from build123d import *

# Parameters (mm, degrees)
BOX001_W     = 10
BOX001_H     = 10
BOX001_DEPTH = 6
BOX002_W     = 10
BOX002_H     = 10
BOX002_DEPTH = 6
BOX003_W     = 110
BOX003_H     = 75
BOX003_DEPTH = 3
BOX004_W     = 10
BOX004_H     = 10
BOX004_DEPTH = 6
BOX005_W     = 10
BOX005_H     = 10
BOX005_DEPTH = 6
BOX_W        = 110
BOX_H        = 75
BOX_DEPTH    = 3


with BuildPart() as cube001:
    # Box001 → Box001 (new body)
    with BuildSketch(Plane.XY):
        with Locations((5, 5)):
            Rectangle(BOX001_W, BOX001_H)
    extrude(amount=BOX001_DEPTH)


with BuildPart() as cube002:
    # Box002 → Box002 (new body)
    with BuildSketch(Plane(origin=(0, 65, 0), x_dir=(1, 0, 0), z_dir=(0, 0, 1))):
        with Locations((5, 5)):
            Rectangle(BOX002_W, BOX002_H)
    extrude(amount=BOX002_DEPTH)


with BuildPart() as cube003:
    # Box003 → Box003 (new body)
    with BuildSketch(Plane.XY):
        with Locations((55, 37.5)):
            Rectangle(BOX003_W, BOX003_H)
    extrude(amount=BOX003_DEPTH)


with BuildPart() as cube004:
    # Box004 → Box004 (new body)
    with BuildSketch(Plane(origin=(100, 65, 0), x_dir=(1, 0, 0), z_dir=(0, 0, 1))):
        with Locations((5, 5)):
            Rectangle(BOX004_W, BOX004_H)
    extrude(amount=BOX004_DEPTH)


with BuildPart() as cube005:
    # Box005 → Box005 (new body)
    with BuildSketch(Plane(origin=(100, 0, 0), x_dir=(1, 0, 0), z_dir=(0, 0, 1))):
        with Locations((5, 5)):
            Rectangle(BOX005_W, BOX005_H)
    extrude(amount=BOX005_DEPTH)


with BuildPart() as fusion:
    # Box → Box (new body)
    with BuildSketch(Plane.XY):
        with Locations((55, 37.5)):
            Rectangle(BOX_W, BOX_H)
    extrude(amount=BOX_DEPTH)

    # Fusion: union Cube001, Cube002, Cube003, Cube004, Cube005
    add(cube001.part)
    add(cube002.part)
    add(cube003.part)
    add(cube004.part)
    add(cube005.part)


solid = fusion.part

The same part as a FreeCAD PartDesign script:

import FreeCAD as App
import Part
import Sketcher

doc = App.newDocument("Part")
params = doc.addObject("Spreadsheet::Sheet", "Params")
for row, (alias, value) in enumerate([
    ("sketch1_width", "10 mm"),
    ("pad1_length", "6 mm"),
    ("sketch2_width", "10 mm"),
    ("pad2_length", "6 mm"),
    ("sketch3_width", "110 mm"),
    ("sketch3_height", "75 mm"),
    ("pad3_length", "3 mm"),
    ("sketch4_width", "10 mm"),
    ("pad4_length", "6 mm"),
    ("sketch5_width", "10 mm"),
    ("pad5_length", "6 mm"),
    ("sketch6_width", "110 mm"),
    ("sketch6_height", "75 mm"),
    ("pad6_length", "3 mm"),
], start=1):
    params.set(f"A{row}", alias)
    params.set(f"B{row}", "=" + value)
    params.setAlias(f"B{row}", alias)

body = doc.addObject("PartDesign::Body", "Body")

sketch1 = body.newObject("Sketcher::SketchObject", "Sketch")
sketch1.AttachmentSupport = (doc.getObject("XY_Plane"), [""])
sketch1.MapMode = "FlatFace"
sketch1.addGeometry([
    Part.LineSegment(App.Vector(0, 10, 0), App.Vector(0, 0, 0)),
    Part.LineSegment(App.Vector(0, 0, 0), App.Vector(10, 0, 0)),
    Part.LineSegment(App.Vector(10, 0, 0), App.Vector(10, 10, 0)),
    Part.LineSegment(App.Vector(10, 10, 0), App.Vector(0, 10, 0)),
], False)
sketch1.addConstraint([
    Sketcher.Constraint("Coincident", 0, 2, 1, 1),
    Sketcher.Constraint("Coincident", 1, 2, 2, 1),
    Sketcher.Constraint("Coincident", 2, 2, 3, 1),
    Sketcher.Constraint("Coincident", 3, 2, 0, 1),
    Sketcher.Constraint("Vertical", 0),
    Sketcher.Constraint("Horizontal", 1),
    Sketcher.Constraint("Vertical", 2),
    Sketcher.Constraint("Horizontal", 3),
    Sketcher.Constraint("Coincident", 0, 2, -1, 1),
    Sketcher.Constraint("Equal", 3, 0),
    Sketcher.Constraint("DistanceX", 1, 1, 1, 2, 10.0),
])
sketch1.setExpression("Constraints[10]", "Params.sketch1_width")
pad1 = body.newObject("PartDesign::Pad", "Pad")
pad1.Profile = sketch1
pad1.setExpression("Length", "Params.pad1_length")
body2 = doc.addObject("PartDesign::Body", "Body001")

sketch2 = body2.newObject("Sketcher::SketchObject", "Sketch001")
sketch2.AttachmentSupport = (doc.getObject("XY_Plane001"), [""])
sketch2.MapMode = "FlatFace"
sketch2.addGeometry([
    Part.LineSegment(App.Vector(0, 75, 0), App.Vector(0, 65, 0)),
    Part.LineSegment(App.Vector(0, 65, 0), App.Vector(10, 65, 0)),
    Part.LineSegment(App.Vector(10, 65, 0), App.Vector(10, 75, 0)),
    Part.LineSegment(App.Vector(10, 75, 0), App.Vector(0, 75, 0)),
], False)
sketch2.addConstraint([
    Sketcher.Constraint("Coincident", 0, 2, 1, 1),
    Sketcher.Constraint("Coincident", 1, 2, 2, 1),
    Sketcher.Constraint("Coincident", 2, 2, 3, 1),
    Sketcher.Constraint("Coincident", 3, 2, 0, 1),
    Sketcher.Constraint("Vertical", 0),
    Sketcher.Constraint("Horizontal", 1),
    Sketcher.Constraint("Vertical", 2),
    Sketcher.Constraint("Horizontal", 3),
    Sketcher.Constraint("PointOnObject", 0, 2, -2),
    Sketcher.Constraint("Equal", 3, 0),
    Sketcher.Constraint("DistanceX", 1, 1, 1, 2, 10.0),
    Sketcher.Constraint("DistanceY", -1, 1, 0, 2, 65.0),
])
sketch2.setExpression("Constraints[10]", "Params.sketch2_width")
pad2 = body2.newObject("PartDesign::Pad", "Pad001")
pad2.Profile = sketch2
pad2.setExpression("Length", "Params.pad2_length")
body3 = doc.addObject("PartDesign::Body", "Body002")

sketch3 = body3.newObject("Sketcher::SketchObject", "Sketch002")
sketch3.AttachmentSupport = (doc.getObject("XY_Plane002"), [""])
sketch3.MapMode = "FlatFace"
sketch3.addGeometry([
    Part.LineSegment(App.Vector(0, 75, 0), App.Vector(0, 0, 0)),
    Part.LineSegment(App.Vector(0, 0, 0), App.Vector(110, 0, 0)),
    Part.LineSegment(App.Vector(110, 0, 0), App.Vector(110, 75, 0)),
    Part.LineSegment(App.Vector(110, 75, 0), App.Vector(0, 75, 0)),
], False)
sketch3.addConstraint([
    Sketcher.Constraint("Coincident", 0, 2, 1, 1),
    Sketcher.Constraint("Coincident", 1, 2, 2, 1),
    Sketcher.Constraint("Coincident", 2, 2, 3, 1),
    Sketcher.Constraint("Coincident", 3, 2, 0, 1),
    Sketcher.Constraint("Vertical", 0),
    Sketcher.Constraint("Horizontal", 1),
    Sketcher.Constraint("Vertical", 2),
    Sketcher.Constraint("Horizontal", 3),
    Sketcher.Constraint("Coincident", 0, 2, -1, 1),
    Sketcher.Constraint("DistanceX", 1, 1, 1, 2, 110.0),
    Sketcher.Constraint("DistanceY", 0, 2, 0, 1, 75.0),
])
sketch3.setExpression("Constraints[9]", "Params.sketch3_width")
sketch3.setExpression("Constraints[10]", "Params.sketch3_height")
pad3 = body3.newObject("PartDesign::Pad", "Pad002")
pad3.Profile = sketch3
pad3.setExpression("Length", "Params.pad3_length")
body4 = doc.addObject("PartDesign::Body", "Body003")

sketch4 = body4.newObject("Sketcher::SketchObject", "Sketch003")
sketch4.AttachmentSupport = (doc.getObject("XY_Plane003"), [""])
sketch4.MapMode = "FlatFace"
sketch4.addGeometry([
    Part.LineSegment(App.Vector(100, 75, 0), App.Vector(100, 65, 0)),
    Part.LineSegment(App.Vector(100, 65, 0), App.Vector(110, 65, 0)),
    Part.LineSegment(App.Vector(110, 65, 0), App.Vector(110, 75, 0)),
    Part.LineSegment(App.Vector(110, 75, 0), App.Vector(100, 75, 0)),
], False)
sketch4.addConstraint([
    Sketcher.Constraint("Coincident", 0, 2, 1, 1),
    Sketcher.Constraint("Coincident", 1, 2, 2, 1),
    Sketcher.Constraint("Coincident", 2, 2, 3, 1),
    Sketcher.Constraint("Coincident", 3, 2, 0, 1),
    Sketcher.Constraint("Vertical", 0),
    Sketcher.Constraint("Horizontal", 1),
    Sketcher.Constraint("Vertical", 2),
    Sketcher.Constraint("Horizontal", 3),
    Sketcher.Constraint("Equal", 3, 0),
    Sketcher.Constraint("DistanceX", 1, 1, 1, 2, 10.0),
    Sketcher.Constraint("DistanceX", -1, 1, 0, 2, 100.0),
    Sketcher.Constraint("DistanceY", -1, 1, 0, 2, 65.0),
])
sketch4.setExpression("Constraints[9]", "Params.sketch4_width")
pad4 = body4.newObject("PartDesign::Pad", "Pad003")
pad4.Profile = sketch4
pad4.setExpression("Length", "Params.pad4_length")
body5 = doc.addObject("PartDesign::Body", "Body004")

sketch5 = body5.newObject("Sketcher::SketchObject", "Sketch004")
sketch5.AttachmentSupport = (doc.getObject("XY_Plane004"), [""])
sketch5.MapMode = "FlatFace"
sketch5.addGeometry([
    Part.LineSegment(App.Vector(100, 10, 0), App.Vector(100, 0, 0)),
    Part.LineSegment(App.Vector(100, 0, 0), App.Vector(110, 0, 0)),
    Part.LineSegment(App.Vector(110, 0, 0), App.Vector(110, 10, 0)),
    Part.LineSegment(App.Vector(110, 10, 0), App.Vector(100, 10, 0)),
], False)
sketch5.addConstraint([
    Sketcher.Constraint("Coincident", 0, 2, 1, 1),
    Sketcher.Constraint("Coincident", 1, 2, 2, 1),
    Sketcher.Constraint("Coincident", 2, 2, 3, 1),
    Sketcher.Constraint("Coincident", 3, 2, 0, 1),
    Sketcher.Constraint("Vertical", 0),
    Sketcher.Constraint("Horizontal", 1),
    Sketcher.Constraint("Vertical", 2),
    Sketcher.Constraint("Horizontal", 3),
    Sketcher.Constraint("PointOnObject", 0, 2, -1),
    Sketcher.Constraint("Equal", 3, 0),
    Sketcher.Constraint("DistanceX", 1, 1, 1, 2, 10.0),
    Sketcher.Constraint("DistanceX", -1, 1, 0, 2, 100.0),
])
sketch5.setExpression("Constraints[10]", "Params.sketch5_width")
pad5 = body5.newObject("PartDesign::Pad", "Pad004")
pad5.Profile = sketch5
pad5.setExpression("Length", "Params.pad5_length")
body6 = doc.addObject("PartDesign::Body", "Body005")

sketch6 = body6.newObject("Sketcher::SketchObject", "Sketch005")
sketch6.AttachmentSupport = (doc.getObject("XY_Plane005"), [""])
sketch6.MapMode = "FlatFace"
sketch6.addGeometry([
    Part.LineSegment(App.Vector(0, 75, 0), App.Vector(0, 0, 0)),
    Part.LineSegment(App.Vector(0, 0, 0), App.Vector(110, 0, 0)),
    Part.LineSegment(App.Vector(110, 0, 0), App.Vector(110, 75, 0)),
    Part.LineSegment(App.Vector(110, 75, 0), App.Vector(0, 75, 0)),
], False)
sketch6.addConstraint([
    Sketcher.Constraint("Coincident", 0, 2, 1, 1),
    Sketcher.Constraint("Coincident", 1, 2, 2, 1),
    Sketcher.Constraint("Coincident", 2, 2, 3, 1),
    Sketcher.Constraint("Coincident", 3, 2, 0, 1),
    Sketcher.Constraint("Vertical", 0),
    Sketcher.Constraint("Horizontal", 1),
    Sketcher.Constraint("Vertical", 2),
    Sketcher.Constraint("Horizontal", 3),
    Sketcher.Constraint("Coincident", 0, 2, -1, 1),
    Sketcher.Constraint("DistanceX", 1, 1, 1, 2, 110.0),
    Sketcher.Constraint("DistanceY", 0, 2, 0, 1, 75.0),
])
sketch6.setExpression("Constraints[9]", "Params.sketch6_width")
sketch6.setExpression("Constraints[10]", "Params.sketch6_height")
pad6 = body6.newObject("PartDesign::Pad", "Pad005")
pad6.Profile = sketch6
pad6.setExpression("Length", "Params.pad6_length")
doc.recompute()

boolean = body6.newObject("PartDesign::Boolean", "Boolean")
boolean.Type = "Fuse"
boolean.addObjects([body])
doc.recompute()

boolean2 = body6.newObject("PartDesign::Boolean", "Boolean001")
boolean2.Type = "Fuse"
boolean2.addObjects([body2])
doc.recompute()

boolean3 = body6.newObject("PartDesign::Boolean", "Boolean002")
boolean3.Type = "Fuse"
boolean3.addObjects([body3])
doc.recompute()

boolean4 = body6.newObject("PartDesign::Boolean", "Boolean003")
boolean4.Type = "Fuse"
boolean4.addObjects([body4])
doc.recompute()

boolean5 = body6.newObject("PartDesign::Boolean", "Boolean004")
boolean5.Type = "Fuse"
boolean5.addObjects([body5])

doc.recompute()
